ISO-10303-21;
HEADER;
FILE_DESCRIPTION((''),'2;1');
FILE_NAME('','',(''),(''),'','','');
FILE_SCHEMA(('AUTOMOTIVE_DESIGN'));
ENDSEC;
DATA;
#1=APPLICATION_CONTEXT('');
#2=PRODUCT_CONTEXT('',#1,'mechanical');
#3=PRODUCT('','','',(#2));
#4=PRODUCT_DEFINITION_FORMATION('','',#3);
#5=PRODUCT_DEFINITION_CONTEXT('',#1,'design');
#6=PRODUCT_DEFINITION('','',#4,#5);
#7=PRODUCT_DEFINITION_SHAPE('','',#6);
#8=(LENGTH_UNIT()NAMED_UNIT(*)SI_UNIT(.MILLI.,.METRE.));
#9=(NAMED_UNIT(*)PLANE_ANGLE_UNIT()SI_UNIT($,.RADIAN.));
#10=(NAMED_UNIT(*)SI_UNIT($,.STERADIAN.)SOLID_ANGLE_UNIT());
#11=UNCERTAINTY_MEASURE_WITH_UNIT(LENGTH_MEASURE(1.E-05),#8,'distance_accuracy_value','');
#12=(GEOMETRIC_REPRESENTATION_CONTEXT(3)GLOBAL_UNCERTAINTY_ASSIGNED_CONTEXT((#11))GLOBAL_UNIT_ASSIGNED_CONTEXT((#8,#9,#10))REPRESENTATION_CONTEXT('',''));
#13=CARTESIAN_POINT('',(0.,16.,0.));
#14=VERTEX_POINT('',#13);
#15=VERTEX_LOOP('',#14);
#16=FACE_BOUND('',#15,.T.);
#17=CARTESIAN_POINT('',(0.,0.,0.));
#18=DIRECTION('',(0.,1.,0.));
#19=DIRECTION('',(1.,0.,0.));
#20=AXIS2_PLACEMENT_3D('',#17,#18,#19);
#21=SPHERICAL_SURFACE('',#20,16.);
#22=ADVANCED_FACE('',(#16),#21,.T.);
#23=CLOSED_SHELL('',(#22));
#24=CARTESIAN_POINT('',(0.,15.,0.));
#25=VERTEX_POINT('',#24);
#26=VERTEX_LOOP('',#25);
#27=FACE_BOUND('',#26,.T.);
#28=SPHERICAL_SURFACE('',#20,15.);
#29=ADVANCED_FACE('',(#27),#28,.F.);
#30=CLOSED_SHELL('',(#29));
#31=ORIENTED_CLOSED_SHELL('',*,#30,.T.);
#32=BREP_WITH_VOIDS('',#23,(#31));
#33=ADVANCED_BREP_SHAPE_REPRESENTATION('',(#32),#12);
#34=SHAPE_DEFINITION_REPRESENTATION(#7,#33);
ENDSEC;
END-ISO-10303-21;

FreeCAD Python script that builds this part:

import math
import FreeCAD as App
import Part
import Sketcher

doc = App.newDocument("Part")
body = doc.addObject("PartDesign::Body", "Body")

# Sketch on XY plane
sketch1 = body.newObject("Sketcher::SketchObject", "Sketch")
sketch1.AttachmentSupport = (doc.getObject("XY_Plane"), [""])
sketch1.MapMode = "FlatFace"
sketch1.addGeometry(Part.LineSegment(App.Vector(0, -16, 0), App.Vector(0, 16, 0)), False)
sketch1.addGeometry(Part.ArcOfCircle(Part.Circle(App.Vector(0, 0, 0), App.Vector(0, 0, 1), 16), math.radians(90), math.radians(270)), False)
sketch1.addConstraint(Sketcher.Constraint("Coincident", 0, 1, 1, 2))
sketch1.addConstraint(Sketcher.Constraint("Coincident", 1, 1, 0, 2))
sketch1.addConstraint(Sketcher.Constraint("Vertical", 0))
sketch1.addConstraint(Sketcher.Constraint("Coincident", 1, 3, -1, 1))
sketch1.addConstraint(Sketcher.Constraint("PointOnObject", 0, 1, -2))
sketch1.addConstraint(Sketcher.Constraint("Radius", 1, 16.0))
revolution = body.newObject("PartDesign::Revolution", "Revolution")
revolution.Profile = sketch1
revolution.ReferenceAxis = (sketch1, ["V_Axis"])
revolution.Angle = 360

# Sketch on XY plane
sketch2 = body.newObject("Sketcher::SketchObject", "Sketch001")
sketch2.AttachmentSupport = (doc.getObject("XY_Plane"), [""])
sketch2.MapMode = "FlatFace"
sketch2.addGeometry(Part.LineSegment(App.Vector(0, -15, 0), App.Vector(0, 15, 0)), False)
sketch2.addGeometry(Part.ArcOfCircle(Part.Circle(App.Vector(0, 0, 0), App.Vector(0, 0, 1), 15), math.radians(90), math.radians(270)), False)
sketch2.addConstraint(Sketcher.Constraint("Coincident", 0, 1, 1, 2))
sketch2.addConstraint(Sketcher.Constraint("Coincident", 1, 1, 0, 2))
sketch2.addConstraint(Sketcher.Constraint("Vertical", 0))
sketch2.addConstraint(Sketcher.Constraint("Coincident", 1, 3, -1, 1))
sketch2.addConstraint(Sketcher.Constraint("PointOnObject", 0, 1, -2))
sketch2.addConstraint(Sketcher.Constraint("Radius", 1, 15.0))
groove = body.newObject("PartDesign::Groove", "Groove")
groove.Profile = sketch2
groove.ReferenceAxis = (sketch2, ["V_Axis"])
groove.Angle = 360

doc.recompute()
